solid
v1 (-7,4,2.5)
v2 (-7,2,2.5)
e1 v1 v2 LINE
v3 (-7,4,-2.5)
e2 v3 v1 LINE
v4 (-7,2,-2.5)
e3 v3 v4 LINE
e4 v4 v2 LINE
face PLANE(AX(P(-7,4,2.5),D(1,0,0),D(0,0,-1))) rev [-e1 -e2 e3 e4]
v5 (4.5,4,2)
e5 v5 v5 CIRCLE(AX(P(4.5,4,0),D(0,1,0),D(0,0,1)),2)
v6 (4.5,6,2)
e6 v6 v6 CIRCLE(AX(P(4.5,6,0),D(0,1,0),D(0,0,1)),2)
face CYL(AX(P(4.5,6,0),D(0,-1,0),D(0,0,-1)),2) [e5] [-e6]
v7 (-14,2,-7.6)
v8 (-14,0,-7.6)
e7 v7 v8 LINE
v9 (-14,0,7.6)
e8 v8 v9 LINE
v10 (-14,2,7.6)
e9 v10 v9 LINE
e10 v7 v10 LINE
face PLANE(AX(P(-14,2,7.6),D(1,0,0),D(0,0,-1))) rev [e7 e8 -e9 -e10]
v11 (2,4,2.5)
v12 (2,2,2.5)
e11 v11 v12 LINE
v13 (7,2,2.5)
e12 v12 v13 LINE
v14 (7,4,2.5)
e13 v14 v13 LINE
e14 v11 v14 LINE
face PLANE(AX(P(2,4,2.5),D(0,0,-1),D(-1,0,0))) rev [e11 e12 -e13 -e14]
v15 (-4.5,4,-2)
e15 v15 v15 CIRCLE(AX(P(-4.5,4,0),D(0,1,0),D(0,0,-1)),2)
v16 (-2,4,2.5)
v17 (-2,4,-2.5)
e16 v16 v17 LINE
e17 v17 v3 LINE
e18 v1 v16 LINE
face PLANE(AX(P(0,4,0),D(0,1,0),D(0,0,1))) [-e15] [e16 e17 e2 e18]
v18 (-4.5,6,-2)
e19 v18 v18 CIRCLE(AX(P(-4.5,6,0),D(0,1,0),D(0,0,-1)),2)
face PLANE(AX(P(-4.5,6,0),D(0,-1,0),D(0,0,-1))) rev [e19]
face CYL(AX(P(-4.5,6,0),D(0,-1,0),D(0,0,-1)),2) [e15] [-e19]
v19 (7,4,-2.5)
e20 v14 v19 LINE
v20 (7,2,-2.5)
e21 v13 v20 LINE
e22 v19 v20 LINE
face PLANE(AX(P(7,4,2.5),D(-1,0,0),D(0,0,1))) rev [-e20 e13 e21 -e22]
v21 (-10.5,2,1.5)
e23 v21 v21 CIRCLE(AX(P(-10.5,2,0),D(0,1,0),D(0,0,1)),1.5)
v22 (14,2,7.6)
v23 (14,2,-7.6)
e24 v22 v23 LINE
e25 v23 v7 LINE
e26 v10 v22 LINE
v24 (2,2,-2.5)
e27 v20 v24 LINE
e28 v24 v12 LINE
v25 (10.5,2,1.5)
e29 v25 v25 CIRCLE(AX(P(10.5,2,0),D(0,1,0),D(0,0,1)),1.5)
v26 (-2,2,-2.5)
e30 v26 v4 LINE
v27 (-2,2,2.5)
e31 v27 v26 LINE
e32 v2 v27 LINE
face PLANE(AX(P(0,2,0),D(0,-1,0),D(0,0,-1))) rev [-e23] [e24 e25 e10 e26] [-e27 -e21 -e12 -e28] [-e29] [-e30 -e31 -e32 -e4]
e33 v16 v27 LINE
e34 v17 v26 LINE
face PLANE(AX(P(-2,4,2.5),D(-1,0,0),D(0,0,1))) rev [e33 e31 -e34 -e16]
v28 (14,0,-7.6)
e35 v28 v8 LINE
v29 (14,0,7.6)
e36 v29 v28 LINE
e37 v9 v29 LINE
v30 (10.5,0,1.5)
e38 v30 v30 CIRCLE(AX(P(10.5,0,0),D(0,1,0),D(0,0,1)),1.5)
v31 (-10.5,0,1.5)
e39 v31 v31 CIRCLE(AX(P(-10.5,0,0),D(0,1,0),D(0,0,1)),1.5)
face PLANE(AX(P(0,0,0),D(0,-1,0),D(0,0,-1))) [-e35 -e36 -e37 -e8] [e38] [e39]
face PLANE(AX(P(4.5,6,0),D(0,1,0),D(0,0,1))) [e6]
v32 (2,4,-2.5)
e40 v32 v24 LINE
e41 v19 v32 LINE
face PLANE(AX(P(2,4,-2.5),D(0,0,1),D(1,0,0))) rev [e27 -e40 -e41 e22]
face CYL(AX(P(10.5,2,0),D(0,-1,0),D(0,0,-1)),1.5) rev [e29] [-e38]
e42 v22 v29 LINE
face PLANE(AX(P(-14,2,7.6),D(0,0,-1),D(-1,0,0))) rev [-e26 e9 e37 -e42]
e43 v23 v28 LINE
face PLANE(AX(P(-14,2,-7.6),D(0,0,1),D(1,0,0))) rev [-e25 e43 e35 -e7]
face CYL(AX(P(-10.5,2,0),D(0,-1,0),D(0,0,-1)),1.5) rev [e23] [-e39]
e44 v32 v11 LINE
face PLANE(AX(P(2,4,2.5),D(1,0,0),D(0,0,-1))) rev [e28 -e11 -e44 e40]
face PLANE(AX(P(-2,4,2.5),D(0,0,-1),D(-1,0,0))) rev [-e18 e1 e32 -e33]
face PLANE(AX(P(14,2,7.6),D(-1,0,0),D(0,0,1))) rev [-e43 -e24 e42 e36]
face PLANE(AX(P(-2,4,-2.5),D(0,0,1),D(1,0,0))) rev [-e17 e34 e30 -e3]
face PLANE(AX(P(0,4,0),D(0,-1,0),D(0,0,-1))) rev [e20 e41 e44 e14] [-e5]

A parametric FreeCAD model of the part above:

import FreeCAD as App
import Part
import Sketcher

V = App.Vector

doc = App.newDocument("Part")
body = doc.addObject("PartDesign::Body", "Body")

# Sketch on XZ plane
sketch1 = body.newObject("Sketcher::SketchObject", "Sketch")
sketch1.AttachmentSupport = (doc.getObject("XZ_Plane"), [""])
sketch1.MapMode = "FlatFace"
sketch1.addGeometry(Part.LineSegment(V(-14, -7.6, 0), V(-14, 7.6, 0)), False)
sketch1.addGeometry(Part.LineSegment(V(-14, 7.6, 0), V(14, 7.6, 0)), False)
sketch1.addGeometry(Part.LineSegment(V(14, 7.6, 0), V(14, -7.6, 0)), False)
sketch1.addGeometry(Part.LineSegment(V(14, -7.6, 0), V(-14, -7.6, 0)), False)
sketch1.addGeometry(Part.Circle(V(-10.5, 0, 0), V(0, 0, 1), 1.5), False)
sketch1.addGeometry(Part.Circle(V(10.5, 0, 0), V(0, 0, 1), 1.5), False)
sketch1.addConstraint(Sketcher.Constraint("Coincident", 0, 2, 1, 1))
sketch1.addConstraint(Sketcher.Constraint("Coincident", 1, 2, 2, 1))
sketch1.addConstraint(Sketcher.Constraint("Coincident", 2, 2, 3, 1))
sketch1.addConstraint(Sketcher.Constraint("Coincident", 3, 2, 0, 1))
sketch1.addConstraint(Sketcher.Constraint("Vertical", 0))
sketch1.addConstraint(Sketcher.Constraint("Horizontal", 1))
sketch1.addConstraint(Sketcher.Constraint("Vertical", 2))
sketch1.addConstraint(Sketcher.Constraint("Horizontal", 3))
sketch1.addConstraint(Sketcher.Constraint("Equal", 4, 5))
sketch1.addConstraint(Sketcher.Constraint("Symmetric", 4, 3, 5, 3, -1, 1))
sketch1.addConstraint(Sketcher.Constraint("Symmetric", 0, 2, 2, 2, -1, 1))
sketch1.addConstraint(Sketcher.Constraint("PointOnObject", 4, 3, -1))
sketch1.addConstraint(Sketcher.Constraint("Diameter", 4, 3.0))
sketch1.addConstraint(Sketcher.Constraint("DistanceX", 1, 1, 1, 2, 28.0))
sketch1.addConstraint(Sketcher.Constraint("DistanceY", 0, 1, 0, 2, 15.2))
sketch1.addConstraint(Sketcher.Constraint("DistanceX", 4, 3, 5, 3, 21.0))
pad1 = body.newObject("PartDesign::Pad", "Pad")
pad1.Profile = sketch1
pad1.Length = 2
pad1.Reversed = True

# Sketch on XZ plane
sketch2 = body.newObject("Sketcher::SketchObject", "Sketch001")
sketch2.AttachmentSupport = (doc.getObject("XZ_Plane"), [""])
sketch2.MapMode = "FlatFace"
sketch2.AttachmentOffset = App.Placement(V(0, 0, -2), App.Rotation())
sketch2.addGeometry(Part.LineSegment(V(2, -2, 0), V(2, 2, 0)), False)
sketch2.addGeometry(Part.LineSegment(V(2, 2, 0), V(7, 2, 0)), False)
sketch2.addGeometry(Part.LineSegment(V(7, 2, 0), V(7, -2, 0)), False)
sketch2.addGeometry(Part.LineSegment(V(7, -2, 0), V(2, -2, 0)), False)
sketch2.addGeometry(Part.LineSegment(V(-7, -2, 0), V(-7, 2, 0)), False)
sketch2.addGeometry(Part.LineSegment(V(-7, 2, 0), V(-2, 2, 0)), False)
sketch2.addGeometry(Part.LineSegment(V(-2, 2, 0), V(-2, -2, 0)), False)
sketch2.addGeometry(Part.LineSegment(V(-2, -2, 0), V(-7, -2, 0)), False)
sketch2.addConstraint(Sketcher.Constraint("Coincident", 0, 2, 1, 1))
sketch2.addConstraint(Sketcher.Constraint("Coincident", 1, 2, 2, 1))
sketch2.addConstraint(Sketcher.Constraint("Coincident", 2, 2, 3, 1))
sketch2.addConstraint(Sketcher.Constraint("Coincident", 3, 2, 0, 1))
sketch2.addConstraint(Sketcher.Constraint("Coincident", 4, 2, 5, 1))
sketch2.addConstraint(Sketcher.Constraint("Coincident", 5, 2, 6, 1))
sketch2.addConstraint(Sketcher.Constraint("Coincident", 6, 2, 7, 1))
sketch2.addConstraint(Sketcher.Constraint("Coincident", 7, 2, 4, 1))
sketch2.addConstraint(Sketcher.Constraint("Vertical", 0))
sketch2.addConstraint(Sketcher.Constraint("Horizontal", 1))
sketch2.addConstraint(Sketcher.Constraint("Vertical", 2))
sketch2.addConstraint(Sketcher.Constraint("Horizontal", 3))
sketch2.addConstraint(Sketcher.Constraint("Vertical", 4))
sketch2.addConstraint(Sketcher.Constraint("Horizontal", 5))
sketch2.addConstraint(Sketcher.Constraint("Vertical", 6))
sketch2.addConstraint(Sketcher.Constraint("Horizontal", 7))
sketch2.addConstraint(Sketcher.Constraint("Symmetric", 2, 2, 4, 2, -1, 1))
sketch2.addConstraint(Sketcher.Constraint("Symmetric", 0, 2, 6, 2, -1, 1))
sketch2.addConstraint(Sketcher.Constraint("Horizontal", 1, 2, 4, 2))
sketch2.addConstraint(Sketcher.Constraint("Equal", 7, 0))
sketch2.addConstraint(Sketcher.Constraint("DistanceX", 1, 1, 1, 2, 5.0))
sketch2.addConstraint(Sketcher.Constraint("DistanceX", -1, 1, 0, 2, 2.0))
pad2 = body.newObject("PartDesign::Pad", "Pad001")
pad2.Profile = sketch2
pad2.Length = 2
pad2.Reversed = True

# Sketch on XZ plane
sketch3 = body.newObject("Sketcher::SketchObject", "Sketch002")
sketch3.AttachmentSupport = (doc.getObject("XZ_Plane"), [""])
sketch3.MapMode = "FlatFace"
sketch3.AttachmentOffset = App.Placement(V(0, 0, -4), App.Rotation())
sketch3.addGeometry(Part.Circle(V(4.5, 0, 0), V(0, 0, 1), 2), False)
sketch3.addGeometry(Part.Circle(V(-4.5, 0, 0), V(0, 0, 1), 2), False)
sketch3.addConstraint(Sketcher.Constraint("Equal", 0, 1))
sketch3.addConstraint(Sketcher.Constraint("Symmetric", 0, 3, 1, 3, -1, 1))
sketch3.addConstraint(Sketcher.Constraint("PointOnObject", 0, 3, -1))
sketch3.addConstraint(Sketcher.Constraint("Diameter", 0, 4.0))
sketch3.addConstraint(Sketcher.Constraint("DistanceX", 1, 3, 0, 3, 9.0))
pad3 = body.newObject("PartDesign::Pad", "Pad002")
pad3.Profile = sketch3
pad3.Length = 2
pad3.Reversed = True

doc.recompute()
